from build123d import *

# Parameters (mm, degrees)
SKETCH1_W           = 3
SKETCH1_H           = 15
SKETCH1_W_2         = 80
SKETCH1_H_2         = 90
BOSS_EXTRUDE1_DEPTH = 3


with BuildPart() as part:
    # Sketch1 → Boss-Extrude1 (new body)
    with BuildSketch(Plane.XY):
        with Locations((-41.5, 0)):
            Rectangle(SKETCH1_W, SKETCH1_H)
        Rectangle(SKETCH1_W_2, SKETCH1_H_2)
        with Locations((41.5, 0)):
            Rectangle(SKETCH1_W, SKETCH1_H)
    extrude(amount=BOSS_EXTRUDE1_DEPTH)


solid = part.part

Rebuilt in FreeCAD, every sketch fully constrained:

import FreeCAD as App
import Part
import Sketcher

V = App.Vector
Q = App.Units.Quantity

doc = App.newDocument("Part")
body = doc.addObject("PartDesign::Body", "Body")

sketch1 = body.newObject("Sketcher::SketchObject", "Sketch")
sketch1.AttachmentSupport = (doc.getObject("XY_Plane"), [""])
sketch1.MapMode = "FlatFace"
sketch1.addGeometry([
    Part.LineSegment(V(-43, 7.5, 0), V(-43, -7.5, 0)),
    Part.LineSegment(V(-43, -7.5, 0), V(-40, -7.5, 0)),
    Part.LineSegment(V(-40, -7.5, 0), V(-40, -45, 0)),
    Part.LineSegment(V(-40, -45, 0), V(40, -45, 0)),
    Part.LineSegment(V(40, -45, 0), V(40, -7.5, 0)),
    Part.LineSegment(V(40, -7.5, 0), V(43, -7.5, 0)),
    Part.LineSegment(V(43, -7.5, 0), V(43, 7.5, 0)),
    Part.LineSegment(V(43, 7.5, 0), V(40, 7.5, 0)),
    Part.LineSegment(V(40, 7.5, 0), V(40, 45, 0)),
    Part.LineSegment(V(40, 45, 0), V(-40, 45, 0)),
    Part.LineSegment(V(-40, 45, 0), V(-40, 7.5, 0)),
    Part.LineSegment(V(-40, 7.5, 0), V(-43, 7.5, 0)),
], False)
sketch1.addConstraint([
    Sketcher.Constraint("Coincident", 0, 2, 1, 1),
    Sketcher.Constraint("Coincident", 1, 2, 2, 1),
    Sketcher.Constraint("Coincident", 2, 2, 3, 1),
    Sketcher.Constraint("Coincident", 3, 2, 4, 1),
    Sketcher.Constraint("Coincident", 4, 2, 5, 1),
    Sketcher.Constraint("Coincident", 5, 2, 6, 1),
    Sketcher.Constraint("Coincident", 6, 2, 7, 1),
    Sketcher.Constraint("Coincident", 7, 2, 8, 1),
    Sketcher.Constraint("Coincident", 8, 2, 9, 1),
    Sketcher.Constraint("Coincident", 9, 2, 10, 1),
    Sketcher.Constraint("Coincident", 10, 2, 11, 1),
    Sketcher.Constraint("Coincident", 11, 2, 0, 1),
    Sketcher.Constraint("Vertical", 0),
    Sketcher.Constraint("Horizontal", 1),
    Sketcher.Constraint("Vertical", 2),
    Sketcher.Constraint("Horizontal", 3),
    Sketcher.Constraint("Vertical", 4),
    Sketcher.Constraint("Horizontal", 5),
    Sketcher.Constraint("Vertical", 6),
    Sketcher.Constraint("Horizontal", 7),
    Sketcher.Constraint("Vertical", 8),
    Sketcher.Constraint("Horizontal", 9),
    Sketcher.Constraint("Vertical", 10),
    Sketcher.Constraint("Horizontal", 11),
    Sketcher.Constraint("Symmetric", 0, 2, 6, 2, -1, 1),
    Sketcher.Constraint("Symmetric", 2, 2, 8, 2, -1, 1),
    Sketcher.Constraint("Symmetric", 4, 2, 10, 2, -1, 1),
    Sketcher.Constraint("Symmetric", 1, 2, 4, 2, -2),
    Sketcher.Constraint("DistanceX", 1, 1, 1, 2, Q("3 mm")),
    Sketcher.Constraint("DistanceX", 3, 1, 3, 2, Q("80 mm")),
    Sketcher.Constraint("DistanceY", 0, 2, 0, 1, Q("15 mm")),
    Sketcher.Constraint("DistanceY", 2, 2, 2, 1, Q("37.5 mm")),
])
pad1 = body.newObject("PartDesign::Pad", "Pad")
pad1.Profile = sketch1
pad1.Length = 3

doc.recompute()
